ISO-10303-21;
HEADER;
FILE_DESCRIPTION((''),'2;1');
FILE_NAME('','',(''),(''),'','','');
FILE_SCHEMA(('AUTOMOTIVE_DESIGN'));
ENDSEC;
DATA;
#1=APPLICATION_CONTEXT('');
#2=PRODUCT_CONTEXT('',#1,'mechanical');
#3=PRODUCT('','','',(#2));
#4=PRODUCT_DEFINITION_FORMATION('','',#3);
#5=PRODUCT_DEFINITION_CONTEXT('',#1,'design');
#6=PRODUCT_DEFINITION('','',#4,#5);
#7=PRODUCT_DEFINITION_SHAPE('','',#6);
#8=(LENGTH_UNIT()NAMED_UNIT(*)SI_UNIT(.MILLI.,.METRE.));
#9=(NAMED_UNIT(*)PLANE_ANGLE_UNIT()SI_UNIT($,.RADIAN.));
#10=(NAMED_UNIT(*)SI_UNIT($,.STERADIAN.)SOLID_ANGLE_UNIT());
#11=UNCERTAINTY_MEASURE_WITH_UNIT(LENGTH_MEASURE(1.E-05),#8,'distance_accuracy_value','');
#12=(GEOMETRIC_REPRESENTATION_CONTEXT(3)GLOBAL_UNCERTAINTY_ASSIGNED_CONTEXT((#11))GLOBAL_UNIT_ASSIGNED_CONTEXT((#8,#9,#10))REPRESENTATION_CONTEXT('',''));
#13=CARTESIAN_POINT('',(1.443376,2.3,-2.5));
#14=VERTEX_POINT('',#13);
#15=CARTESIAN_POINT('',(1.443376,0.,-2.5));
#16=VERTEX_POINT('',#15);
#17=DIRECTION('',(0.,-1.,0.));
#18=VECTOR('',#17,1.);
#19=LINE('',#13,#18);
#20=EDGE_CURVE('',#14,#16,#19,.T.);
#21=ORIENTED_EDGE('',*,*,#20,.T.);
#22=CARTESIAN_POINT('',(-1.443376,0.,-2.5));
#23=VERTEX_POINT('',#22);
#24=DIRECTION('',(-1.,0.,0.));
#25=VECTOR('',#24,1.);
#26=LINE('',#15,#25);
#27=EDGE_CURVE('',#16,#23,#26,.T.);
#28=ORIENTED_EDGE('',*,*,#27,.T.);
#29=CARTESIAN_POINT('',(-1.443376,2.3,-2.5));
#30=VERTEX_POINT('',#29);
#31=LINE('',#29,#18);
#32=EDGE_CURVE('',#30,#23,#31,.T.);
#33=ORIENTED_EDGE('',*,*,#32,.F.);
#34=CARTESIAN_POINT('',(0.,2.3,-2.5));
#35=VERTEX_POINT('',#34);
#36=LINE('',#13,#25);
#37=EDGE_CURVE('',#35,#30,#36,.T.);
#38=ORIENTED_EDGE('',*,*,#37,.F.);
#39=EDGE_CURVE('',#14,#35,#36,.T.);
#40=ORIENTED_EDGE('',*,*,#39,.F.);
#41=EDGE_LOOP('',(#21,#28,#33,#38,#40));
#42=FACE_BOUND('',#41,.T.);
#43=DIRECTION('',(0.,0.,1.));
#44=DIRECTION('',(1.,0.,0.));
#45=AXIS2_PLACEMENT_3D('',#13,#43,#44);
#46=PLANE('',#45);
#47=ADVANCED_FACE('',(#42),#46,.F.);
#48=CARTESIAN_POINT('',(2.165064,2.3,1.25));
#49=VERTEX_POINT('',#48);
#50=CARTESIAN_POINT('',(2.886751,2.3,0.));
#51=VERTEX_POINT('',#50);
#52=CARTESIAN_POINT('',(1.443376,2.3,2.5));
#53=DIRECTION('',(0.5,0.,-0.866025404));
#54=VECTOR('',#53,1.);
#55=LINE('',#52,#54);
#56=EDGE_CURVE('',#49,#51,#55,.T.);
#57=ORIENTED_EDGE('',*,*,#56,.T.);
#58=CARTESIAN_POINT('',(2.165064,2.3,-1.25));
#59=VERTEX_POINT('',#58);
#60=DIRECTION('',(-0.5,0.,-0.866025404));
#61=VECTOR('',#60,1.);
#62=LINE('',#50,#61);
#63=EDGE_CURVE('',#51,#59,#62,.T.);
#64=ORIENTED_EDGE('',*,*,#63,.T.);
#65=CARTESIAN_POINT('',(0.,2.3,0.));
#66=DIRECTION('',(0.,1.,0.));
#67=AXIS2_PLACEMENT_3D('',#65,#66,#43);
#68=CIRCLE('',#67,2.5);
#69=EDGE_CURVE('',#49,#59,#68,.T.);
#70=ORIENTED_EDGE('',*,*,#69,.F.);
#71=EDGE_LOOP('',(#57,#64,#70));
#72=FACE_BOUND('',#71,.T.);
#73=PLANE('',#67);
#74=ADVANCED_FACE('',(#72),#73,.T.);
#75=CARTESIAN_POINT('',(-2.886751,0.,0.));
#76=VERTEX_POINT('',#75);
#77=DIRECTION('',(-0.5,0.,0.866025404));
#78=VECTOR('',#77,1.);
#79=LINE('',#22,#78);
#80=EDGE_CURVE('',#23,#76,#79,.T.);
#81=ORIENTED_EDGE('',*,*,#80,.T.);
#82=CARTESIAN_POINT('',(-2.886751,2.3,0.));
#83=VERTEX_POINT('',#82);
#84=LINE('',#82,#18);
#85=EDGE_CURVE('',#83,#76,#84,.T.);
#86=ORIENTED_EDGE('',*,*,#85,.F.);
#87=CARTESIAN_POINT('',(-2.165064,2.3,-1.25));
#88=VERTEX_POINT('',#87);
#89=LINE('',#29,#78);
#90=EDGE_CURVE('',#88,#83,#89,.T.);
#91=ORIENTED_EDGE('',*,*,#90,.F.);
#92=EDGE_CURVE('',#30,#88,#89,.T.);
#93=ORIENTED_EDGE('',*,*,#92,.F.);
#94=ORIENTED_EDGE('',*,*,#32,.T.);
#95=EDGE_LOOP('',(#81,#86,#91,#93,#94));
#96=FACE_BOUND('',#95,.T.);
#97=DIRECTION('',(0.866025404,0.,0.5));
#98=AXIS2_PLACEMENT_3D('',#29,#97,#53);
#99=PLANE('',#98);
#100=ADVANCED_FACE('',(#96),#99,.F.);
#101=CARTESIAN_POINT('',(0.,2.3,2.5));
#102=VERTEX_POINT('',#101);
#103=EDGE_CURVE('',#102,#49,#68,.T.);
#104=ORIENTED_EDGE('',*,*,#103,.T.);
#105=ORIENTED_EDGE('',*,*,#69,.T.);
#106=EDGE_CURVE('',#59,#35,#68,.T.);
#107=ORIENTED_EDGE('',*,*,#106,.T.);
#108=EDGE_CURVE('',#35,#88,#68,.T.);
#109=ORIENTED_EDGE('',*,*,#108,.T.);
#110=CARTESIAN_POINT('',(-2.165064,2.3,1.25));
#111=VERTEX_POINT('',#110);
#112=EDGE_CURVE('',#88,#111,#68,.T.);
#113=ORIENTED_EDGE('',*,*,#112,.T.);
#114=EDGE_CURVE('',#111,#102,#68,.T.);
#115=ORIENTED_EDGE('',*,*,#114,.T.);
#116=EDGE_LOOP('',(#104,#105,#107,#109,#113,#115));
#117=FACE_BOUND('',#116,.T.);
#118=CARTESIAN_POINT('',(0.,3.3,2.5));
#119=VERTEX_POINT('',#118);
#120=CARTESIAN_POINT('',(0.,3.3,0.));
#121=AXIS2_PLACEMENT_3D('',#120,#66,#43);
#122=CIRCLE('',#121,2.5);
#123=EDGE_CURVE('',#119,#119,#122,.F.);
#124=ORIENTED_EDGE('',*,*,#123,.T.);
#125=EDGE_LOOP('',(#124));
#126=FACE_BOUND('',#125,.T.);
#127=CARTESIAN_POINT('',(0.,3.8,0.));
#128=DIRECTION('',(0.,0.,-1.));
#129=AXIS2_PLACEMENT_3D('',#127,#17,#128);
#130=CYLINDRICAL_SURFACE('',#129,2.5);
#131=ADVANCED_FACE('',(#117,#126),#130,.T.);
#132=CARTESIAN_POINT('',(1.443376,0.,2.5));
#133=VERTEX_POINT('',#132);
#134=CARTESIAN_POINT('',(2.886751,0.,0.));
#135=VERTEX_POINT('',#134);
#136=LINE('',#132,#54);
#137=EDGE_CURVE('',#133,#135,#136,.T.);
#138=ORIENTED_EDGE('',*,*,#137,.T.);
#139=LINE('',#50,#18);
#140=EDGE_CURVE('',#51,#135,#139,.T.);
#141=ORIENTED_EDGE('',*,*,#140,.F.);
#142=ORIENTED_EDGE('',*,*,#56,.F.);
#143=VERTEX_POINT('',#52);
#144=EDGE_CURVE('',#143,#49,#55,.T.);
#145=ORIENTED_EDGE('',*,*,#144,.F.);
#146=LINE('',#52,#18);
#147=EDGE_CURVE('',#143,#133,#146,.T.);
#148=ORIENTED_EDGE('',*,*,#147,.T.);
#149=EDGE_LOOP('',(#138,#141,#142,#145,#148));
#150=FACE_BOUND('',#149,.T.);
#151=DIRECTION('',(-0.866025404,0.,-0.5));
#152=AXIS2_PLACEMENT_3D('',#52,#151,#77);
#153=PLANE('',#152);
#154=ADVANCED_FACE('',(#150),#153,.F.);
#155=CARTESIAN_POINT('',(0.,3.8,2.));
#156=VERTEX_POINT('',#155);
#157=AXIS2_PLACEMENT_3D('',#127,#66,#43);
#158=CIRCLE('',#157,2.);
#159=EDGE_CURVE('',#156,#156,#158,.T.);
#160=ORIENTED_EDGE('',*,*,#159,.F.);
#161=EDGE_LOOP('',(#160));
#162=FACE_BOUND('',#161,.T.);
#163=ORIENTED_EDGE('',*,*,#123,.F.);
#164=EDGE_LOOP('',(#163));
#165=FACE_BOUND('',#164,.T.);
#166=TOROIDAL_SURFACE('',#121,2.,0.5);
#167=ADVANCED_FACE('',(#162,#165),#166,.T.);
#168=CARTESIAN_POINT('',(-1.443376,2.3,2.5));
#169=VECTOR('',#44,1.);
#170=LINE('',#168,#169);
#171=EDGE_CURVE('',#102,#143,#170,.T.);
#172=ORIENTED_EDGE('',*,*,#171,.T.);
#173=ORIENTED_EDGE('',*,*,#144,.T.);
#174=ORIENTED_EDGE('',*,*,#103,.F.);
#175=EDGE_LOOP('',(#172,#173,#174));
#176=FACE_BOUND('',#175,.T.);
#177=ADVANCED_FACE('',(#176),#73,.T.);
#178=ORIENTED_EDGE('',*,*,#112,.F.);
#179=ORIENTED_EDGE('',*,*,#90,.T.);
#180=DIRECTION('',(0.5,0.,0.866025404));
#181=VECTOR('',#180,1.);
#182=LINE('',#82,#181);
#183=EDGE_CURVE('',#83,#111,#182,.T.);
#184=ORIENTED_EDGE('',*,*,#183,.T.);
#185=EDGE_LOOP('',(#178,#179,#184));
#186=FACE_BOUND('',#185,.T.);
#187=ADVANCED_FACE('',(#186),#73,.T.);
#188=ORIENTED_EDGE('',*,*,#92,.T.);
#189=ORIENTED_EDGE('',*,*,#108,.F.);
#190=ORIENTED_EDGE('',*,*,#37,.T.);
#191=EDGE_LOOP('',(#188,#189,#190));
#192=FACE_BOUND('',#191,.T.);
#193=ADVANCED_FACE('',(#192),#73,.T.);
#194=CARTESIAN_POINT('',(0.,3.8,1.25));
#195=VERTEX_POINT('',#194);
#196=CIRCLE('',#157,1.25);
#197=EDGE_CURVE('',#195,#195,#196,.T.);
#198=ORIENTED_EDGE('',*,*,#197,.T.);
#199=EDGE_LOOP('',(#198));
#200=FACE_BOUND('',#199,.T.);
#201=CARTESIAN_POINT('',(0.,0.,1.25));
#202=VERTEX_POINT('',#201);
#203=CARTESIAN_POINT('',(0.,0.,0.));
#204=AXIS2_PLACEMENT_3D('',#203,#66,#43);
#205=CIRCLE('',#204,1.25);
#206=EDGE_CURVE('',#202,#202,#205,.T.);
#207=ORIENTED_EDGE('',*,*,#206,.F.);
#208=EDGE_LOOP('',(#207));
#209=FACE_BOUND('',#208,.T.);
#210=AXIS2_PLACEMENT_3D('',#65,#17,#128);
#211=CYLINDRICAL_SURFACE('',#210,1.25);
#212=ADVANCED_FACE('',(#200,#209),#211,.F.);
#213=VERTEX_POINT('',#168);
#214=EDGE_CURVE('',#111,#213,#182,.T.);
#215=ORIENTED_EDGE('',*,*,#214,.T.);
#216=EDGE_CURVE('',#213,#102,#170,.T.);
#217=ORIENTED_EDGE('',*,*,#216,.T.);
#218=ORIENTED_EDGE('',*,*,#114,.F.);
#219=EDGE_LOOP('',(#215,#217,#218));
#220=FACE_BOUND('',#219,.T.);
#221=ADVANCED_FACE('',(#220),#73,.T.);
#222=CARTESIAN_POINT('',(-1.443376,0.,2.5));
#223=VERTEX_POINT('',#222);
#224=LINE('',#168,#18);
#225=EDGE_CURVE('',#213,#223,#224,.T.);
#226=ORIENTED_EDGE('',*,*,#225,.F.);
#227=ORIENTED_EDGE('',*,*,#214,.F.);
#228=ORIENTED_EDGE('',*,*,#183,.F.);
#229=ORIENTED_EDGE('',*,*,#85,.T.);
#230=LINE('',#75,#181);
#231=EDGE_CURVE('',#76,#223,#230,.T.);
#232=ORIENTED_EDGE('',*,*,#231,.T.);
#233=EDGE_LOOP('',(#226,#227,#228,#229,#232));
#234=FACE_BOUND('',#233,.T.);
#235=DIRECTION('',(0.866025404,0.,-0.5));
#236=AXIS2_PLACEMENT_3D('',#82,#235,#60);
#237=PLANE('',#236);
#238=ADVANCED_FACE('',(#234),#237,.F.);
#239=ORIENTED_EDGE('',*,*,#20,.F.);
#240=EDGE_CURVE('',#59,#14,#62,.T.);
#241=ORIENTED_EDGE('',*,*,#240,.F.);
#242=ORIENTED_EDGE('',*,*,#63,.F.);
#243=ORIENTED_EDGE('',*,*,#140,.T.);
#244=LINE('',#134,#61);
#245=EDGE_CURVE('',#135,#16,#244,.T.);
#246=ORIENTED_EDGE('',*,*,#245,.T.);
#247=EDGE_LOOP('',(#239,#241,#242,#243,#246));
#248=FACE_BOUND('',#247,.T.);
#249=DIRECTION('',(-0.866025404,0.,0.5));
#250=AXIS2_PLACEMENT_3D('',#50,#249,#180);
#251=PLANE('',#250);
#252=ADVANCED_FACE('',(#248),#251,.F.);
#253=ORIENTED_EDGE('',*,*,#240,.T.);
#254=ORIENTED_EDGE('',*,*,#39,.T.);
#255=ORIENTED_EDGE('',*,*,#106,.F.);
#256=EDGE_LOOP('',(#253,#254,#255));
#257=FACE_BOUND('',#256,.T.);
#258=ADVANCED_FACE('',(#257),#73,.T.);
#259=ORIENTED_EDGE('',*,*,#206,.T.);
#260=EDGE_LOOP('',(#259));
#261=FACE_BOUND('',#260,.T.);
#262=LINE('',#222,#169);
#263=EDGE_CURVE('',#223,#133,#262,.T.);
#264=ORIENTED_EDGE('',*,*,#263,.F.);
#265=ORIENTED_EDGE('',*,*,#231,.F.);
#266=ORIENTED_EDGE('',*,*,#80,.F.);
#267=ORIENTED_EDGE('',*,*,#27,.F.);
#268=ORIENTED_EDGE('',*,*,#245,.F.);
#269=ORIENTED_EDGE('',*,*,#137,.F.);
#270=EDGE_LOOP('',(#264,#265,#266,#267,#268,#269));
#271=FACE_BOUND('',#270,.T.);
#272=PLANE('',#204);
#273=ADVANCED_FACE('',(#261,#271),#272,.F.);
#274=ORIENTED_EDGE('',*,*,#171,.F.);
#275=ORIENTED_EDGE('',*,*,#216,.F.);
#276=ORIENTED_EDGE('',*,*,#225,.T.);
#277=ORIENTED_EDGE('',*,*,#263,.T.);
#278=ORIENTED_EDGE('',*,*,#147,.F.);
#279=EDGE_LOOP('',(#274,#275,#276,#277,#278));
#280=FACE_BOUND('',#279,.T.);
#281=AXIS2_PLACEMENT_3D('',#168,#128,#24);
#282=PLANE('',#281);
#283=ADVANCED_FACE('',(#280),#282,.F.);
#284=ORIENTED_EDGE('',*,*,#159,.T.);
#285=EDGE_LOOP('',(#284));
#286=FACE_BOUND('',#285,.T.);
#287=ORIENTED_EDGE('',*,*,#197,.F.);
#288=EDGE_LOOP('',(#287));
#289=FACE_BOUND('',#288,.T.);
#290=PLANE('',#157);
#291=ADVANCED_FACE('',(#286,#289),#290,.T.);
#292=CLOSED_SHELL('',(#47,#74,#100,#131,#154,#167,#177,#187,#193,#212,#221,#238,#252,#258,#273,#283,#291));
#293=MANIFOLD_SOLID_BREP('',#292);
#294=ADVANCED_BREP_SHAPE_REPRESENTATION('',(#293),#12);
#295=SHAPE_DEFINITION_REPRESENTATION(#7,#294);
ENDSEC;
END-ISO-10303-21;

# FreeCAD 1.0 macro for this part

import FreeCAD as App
import Part
import Sketcher

V = App.Vector
Q = App.Units.Quantity


def edges_at(feature, points):
    """Names of the edges that pass closest to the given points."""
    edges = feature.Shape.Edges
    near = lambda p: min(range(len(edges)), key=lambda i: edges[i].distToShape(Part.Vertex(*p))[0])
    return sorted({f"Edge{near(p) + 1}" for p in points})

doc = App.newDocument("Part")
body = doc.addObject("PartDesign::Body", "Body")

# Sketch on XZ plane
sketch1 = doc.addObject("Sketcher::SketchObject", "Sketch")
body.addObject(sketch1)
sketch1.AttachmentSupport = (doc.XZ_Plane, [""])
sketch1.MapMode = "FlatFace"
sketch1.addGeometry([
    Part.LineSegment(V(2.9, 0, 0), V(1.4, -2.5, 0)),  # 0
    Part.LineSegment(V(1.4, -2.5, 0), V(-1.4, -2.5, 0)),  # 1
    Part.LineSegment(V(-1.4, -2.5, 0), V(-2.9, 0, 0)),  # 2
    Part.LineSegment(V(-2.9, 0, 0), V(-1.4, 2.5, 0)),  # 3
    Part.LineSegment(V(-1.4, 2.5, 0), V(1.4, 2.5, 0)),  # 4
    Part.LineSegment(V(1.4, 2.5, 0), V(2.9, 0, 0)),  # 5
    Part.Circle(V(0, 0, 0), V(0, 0, 1), 1.2),  # 6
], False)
sketch1.addConstraint([
    Sketcher.Constraint("Coincident", 0, 2, 1, 1),
    Sketcher.Constraint("Coincident", 1, 2, 2, 1),
    Sketcher.Constraint("Coincident", 2, 2, 3, 1),
    Sketcher.Constraint("Coincident", 3, 2, 4, 1),
    Sketcher.Constraint("Coincident", 4, 2, 5, 1),
    Sketcher.Constraint("Coincident", 5, 2, 0, 1),
    Sketcher.Constraint("Horizontal", 1),
    Sketcher.Constraint("Horizontal", 4),
    Sketcher.Constraint("Coincident", 6, 3, -1, 1),
    Sketcher.Constraint("Symmetric", 0, 2, 3, 2, -1, 1),
    Sketcher.Constraint("Symmetric", 2, 2, 5, 2, -1, 1),
    Sketcher.Constraint("PointOnObject", 2, 2, -1),
    Sketcher.Constraint("Parallel", 2, 5),
    Sketcher.Constraint("Vertical", 1, 2, 3, 2),
    Sketcher.Constraint("Diameter", 6, Q("2.5 mm")),
    Sketcher.Constraint("Angle", 0, Q("-120 deg")),
    Sketcher.Constraint("DistanceY", 1, 2, 3, 2, Q("5 mm")),
    Sketcher.Constraint("DistanceX", 1, 2, 1, 1, Q("2.886751 mm")),
])
pad1 = doc.addObject("PartDesign::Pad", "Pad")
body.addObject(pad1)
pad1.Profile = sketch1
pad1.Length = 2.3
pad1.Reversed = True

# Sketch on XZ plane
sketch2 = doc.addObject("Sketcher::SketchObject", "Sketch001")
body.addObject(sketch2)
sketch2.AttachmentSupport = (doc.XZ_Plane, [""])
sketch2.MapMode = "FlatFace"
sketch2.AttachmentOffset = App.Placement(V(0, 0, -2.3), App.Rotation())
sketch2.addGeometry([
    Part.Circle(V(0, 0, 0), V(0, 0, 1), 2.5),
    Part.Circle(V(0, 0, 0), V(0, 0, 1), 1.2),
], False)
sketch2.addConstraint([
    Sketcher.Constraint("Coincident", 0, 3, -1, 1),
    Sketcher.Constraint("Coincident", 1, 3, -1, 1),
    Sketcher.Constraint("Diameter", 0, Q("5 mm")),
    Sketcher.Constraint("Diameter", 1, Q("2.5 mm")),
])
pad2 = doc.addObject("PartDesign::Pad", "Pad001")
body.addObject(pad2)
pad2.Profile = sketch2
pad2.Length = 1.5
pad2.Reversed = True
doc.recompute()

fillet = doc.addObject("PartDesign::Fillet", "Fillet")
body.addObject(fillet)
fillet.Base = (pad2, edges_at(pad2, [(0, 3.8, -2.5)]))
fillet.Radius = 0.5

doc.recompute()
